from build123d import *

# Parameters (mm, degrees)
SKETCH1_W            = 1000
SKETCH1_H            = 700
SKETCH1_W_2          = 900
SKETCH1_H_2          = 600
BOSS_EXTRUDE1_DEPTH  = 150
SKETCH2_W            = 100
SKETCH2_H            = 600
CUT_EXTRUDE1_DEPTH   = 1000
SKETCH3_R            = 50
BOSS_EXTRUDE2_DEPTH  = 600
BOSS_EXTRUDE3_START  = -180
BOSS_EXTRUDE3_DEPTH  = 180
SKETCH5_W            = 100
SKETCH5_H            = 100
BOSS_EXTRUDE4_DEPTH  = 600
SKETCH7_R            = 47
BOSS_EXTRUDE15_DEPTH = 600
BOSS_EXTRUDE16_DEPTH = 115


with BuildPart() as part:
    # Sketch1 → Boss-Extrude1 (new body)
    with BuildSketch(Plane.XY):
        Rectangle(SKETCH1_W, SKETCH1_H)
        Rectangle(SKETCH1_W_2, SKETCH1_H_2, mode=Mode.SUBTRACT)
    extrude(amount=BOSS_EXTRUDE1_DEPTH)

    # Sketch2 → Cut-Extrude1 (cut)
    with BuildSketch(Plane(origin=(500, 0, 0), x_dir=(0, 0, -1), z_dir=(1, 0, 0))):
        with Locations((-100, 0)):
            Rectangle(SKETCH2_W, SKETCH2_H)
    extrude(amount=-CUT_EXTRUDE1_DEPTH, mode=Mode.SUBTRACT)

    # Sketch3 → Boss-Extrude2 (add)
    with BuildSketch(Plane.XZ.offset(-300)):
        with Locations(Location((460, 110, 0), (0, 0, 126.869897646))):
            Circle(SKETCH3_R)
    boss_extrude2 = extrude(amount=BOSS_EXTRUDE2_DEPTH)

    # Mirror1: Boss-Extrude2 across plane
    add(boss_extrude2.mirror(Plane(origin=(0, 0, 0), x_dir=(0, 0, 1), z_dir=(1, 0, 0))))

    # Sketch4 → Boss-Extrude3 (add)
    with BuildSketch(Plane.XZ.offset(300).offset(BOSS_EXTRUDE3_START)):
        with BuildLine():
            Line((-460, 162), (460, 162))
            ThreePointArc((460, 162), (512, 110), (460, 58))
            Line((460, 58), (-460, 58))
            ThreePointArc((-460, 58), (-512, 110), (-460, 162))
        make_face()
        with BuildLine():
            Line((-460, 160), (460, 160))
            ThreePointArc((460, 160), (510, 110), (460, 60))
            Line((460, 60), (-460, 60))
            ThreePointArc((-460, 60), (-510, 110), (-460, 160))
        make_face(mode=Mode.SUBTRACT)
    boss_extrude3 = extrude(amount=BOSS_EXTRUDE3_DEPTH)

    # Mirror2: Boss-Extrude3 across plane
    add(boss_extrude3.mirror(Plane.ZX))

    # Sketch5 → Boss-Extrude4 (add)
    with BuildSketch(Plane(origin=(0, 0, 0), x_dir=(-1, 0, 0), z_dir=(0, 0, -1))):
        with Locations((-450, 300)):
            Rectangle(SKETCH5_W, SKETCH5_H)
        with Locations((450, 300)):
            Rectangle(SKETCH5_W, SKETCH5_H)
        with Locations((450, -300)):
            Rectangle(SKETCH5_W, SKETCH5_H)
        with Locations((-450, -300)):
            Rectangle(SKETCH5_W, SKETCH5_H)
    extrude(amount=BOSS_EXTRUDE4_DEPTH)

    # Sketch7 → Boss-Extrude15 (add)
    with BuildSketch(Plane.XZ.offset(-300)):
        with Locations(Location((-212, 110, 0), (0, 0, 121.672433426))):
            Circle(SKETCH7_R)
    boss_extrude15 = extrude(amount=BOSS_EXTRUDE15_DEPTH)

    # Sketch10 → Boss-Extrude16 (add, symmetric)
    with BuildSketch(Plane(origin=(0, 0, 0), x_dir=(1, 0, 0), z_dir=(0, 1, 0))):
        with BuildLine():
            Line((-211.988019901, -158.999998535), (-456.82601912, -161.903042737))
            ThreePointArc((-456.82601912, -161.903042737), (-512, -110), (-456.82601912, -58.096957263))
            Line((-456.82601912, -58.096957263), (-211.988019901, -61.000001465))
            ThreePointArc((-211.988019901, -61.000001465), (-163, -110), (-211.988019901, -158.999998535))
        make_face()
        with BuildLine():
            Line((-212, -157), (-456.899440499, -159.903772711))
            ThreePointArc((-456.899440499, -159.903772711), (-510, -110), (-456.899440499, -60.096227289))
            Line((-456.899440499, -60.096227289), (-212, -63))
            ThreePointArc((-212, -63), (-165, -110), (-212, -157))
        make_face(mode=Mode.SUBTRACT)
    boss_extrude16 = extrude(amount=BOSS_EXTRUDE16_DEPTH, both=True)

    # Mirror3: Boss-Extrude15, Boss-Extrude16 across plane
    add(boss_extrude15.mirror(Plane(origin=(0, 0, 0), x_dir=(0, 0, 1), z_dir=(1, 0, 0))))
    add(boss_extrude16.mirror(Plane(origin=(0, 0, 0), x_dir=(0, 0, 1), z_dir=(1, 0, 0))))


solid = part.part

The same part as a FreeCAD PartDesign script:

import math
import FreeCAD as App
import Part
import Sketcher
Q = App.Units.Quantity


def add_polygon(sketch, points):
    """Adds a closed chain of lines whose ends are joined by coincident constraints."""
    first, n = sketch.GeometryCount, len(points)
    for a, b in zip(points, points[1:] + points[:1]):
        sketch.addGeometry(Part.LineSegment(App.Vector(*a, 0), App.Vector(*b, 0)), False)
    for i in range(n):
        sketch.addConstraint(Sketcher.Constraint("Coincident", first + i, 2, first + (i + 1) % n, 1))

doc = App.newDocument("Part")
params = doc.addObject("Spreadsheet::Sheet", "Params")
for row, (alias, value) in enumerate([
    ("sketch1_width", "1000 mm"),
    ("sketch1_width2", "900 mm"),
    ("sketch1_height", "700 mm"),
    ("sketch1_height2", "600 mm"),
    ("pad1_length", "150 mm"),
    ("sketch2_width", "600 mm"),
    ("sketch2_height", "100 mm"),
    ("pocket1_length", "1000 mm"),
    ("sketch3_diameter", "100 mm"),
    ("pad2_length", "600 mm"),
    ("sketch4_radius", "52 mm"),
    ("sketch4_radius2", "50 mm"),
    ("sketch4_width", "920 mm"),
    ("pad3_length", "180 mm"),
    ("sketch5_width", "100 mm"),
    ("pad4_length", "600 mm"),
    ("sketch6_diameter", "94 mm"),
    ("pad5_length", "600 mm"),
    ("sketch7_radius", "49 mm"),
    ("sketch7_radius2", "52 mm"),
    ("sketch7_radius3", "50 mm"),
    ("sketch7_radius4", "47 mm"),
    ("pad6_length", "230 mm"),
], start=1):
    params.set(f"A{row}", alias)
    params.set(f"B{row}", "=" + value)
    params.setAlias(f"B{row}", alias)

body = doc.addObject("PartDesign::Body", "Body")

# Sketch on XY plane
sketch1 = body.newObject("Sketcher::SketchObject", "Sketch")
sketch1.AttachmentSupport = (doc.getObject("XY_Plane"), [""])
sketch1.MapMode = "FlatFace"
add_polygon(sketch1, [(-500, 350), (-500, -350), (500, -350), (500, 350)])  # lines 0-3
add_polygon(sketch1, [(450, -300), (-450, -300), (-450, 300), (450, 300)])  # lines 4-7
sketch1.addConstraint(Sketcher.Constraint("Vertical", 0))
sketch1.addConstraint(Sketcher.Constraint("Horizontal", 1))
sketch1.addConstraint(Sketcher.Constraint("Vertical", 2))
sketch1.addConstraint(Sketcher.Constraint("Horizontal", 3))
sketch1.addConstraint(Sketcher.Constraint("Horizontal", 4))
sketch1.addConstraint(Sketcher.Constraint("Vertical", 5))
sketch1.addConstraint(Sketcher.Constraint("Horizontal", 6))
sketch1.addConstraint(Sketcher.Constraint("Vertical", 7))
sketch1.addConstraint(Sketcher.Constraint("Symmetric", 0, 2, 2, 2, -1, 1))
sketch1.addConstraint(Sketcher.Constraint("Symmetric", 4, 2, 6, 2, -1, 1))
sketch1.addConstraint(Sketcher.Constraint("DistanceX", 1, 1, 1, 2, Q("1000 mm")))
sketch1.addConstraint(Sketcher.Constraint("DistanceX", 4, 2, 4, 1, Q("900 mm")))
sketch1.addConstraint(Sketcher.Constraint("DistanceY", 0, 2, 0, 1, Q("700 mm")))
sketch1.addConstraint(Sketcher.Constraint("DistanceY", 5, 1, 5, 2, Q("600 mm")))
sketch1.setExpression("Constraints[18]", "Params.sketch1_width")
sketch1.setExpression("Constraints[19]", "Params.sketch1_width2")
sketch1.setExpression("Constraints[20]", "Params.sketch1_height")
sketch1.setExpression("Constraints[21]", "Params.sketch1_height2")
pad1 = body.newObject("PartDesign::Pad", "Pad")
pad1.Profile = sketch1
pad1.setExpression("Length", "Params.pad1_length")

# Sketch on YZ plane
sketch2 = body.newObject("Sketcher::SketchObject", "Sketch001")
sketch2.AttachmentSupport = (doc.getObject("YZ_Plane"), [""])
sketch2.MapMode = "FlatFace"
sketch2.AttachmentOffset = App.Placement(App.Vector(0, 0, 500), App.Rotation())
add_polygon(sketch2, [(300, 150), (-300, 150), (-300, 50), (300, 50)])  # lines 0-3
sketch2.addConstraint(Sketcher.Constraint("Horizontal", 0))
sketch2.addConstraint(Sketcher.Constraint("Vertical", 1))
sketch2.addConstraint(Sketcher.Constraint("Horizontal", 2))
sketch2.addConstraint(Sketcher.Constraint("Vertical", 3))
sketch2.addConstraint(Sketcher.Constraint("DistanceX", 0, 2, 0, 1, Q("600 mm")))
sketch2.addConstraint(Sketcher.Constraint("DistanceY", 1, 2, 1, 1, Q("100 mm")))
sketch2.addConstraint(Sketcher.Constraint("DistanceX", 0, 2, -1, 1, Q("300 mm")))
sketch2.addConstraint(Sketcher.Constraint("DistanceY", -1, 1, 0, 2, Q("150 mm")))
sketch2.setExpression("Constraints[8]", "Params.sketch2_width")
sketch2.setExpression("Constraints[9]", "Params.sketch2_height")
pocket1 = body.newObject("PartDesign::Pocket", "Pocket")
pocket1.Profile = sketch2
pocket1.setExpression("Length", "Params.pocket1_length")

# Sketch on XZ plane
sketch3 = body.newObject("Sketcher::SketchObject", "Sketch002")
sketch3.AttachmentSupport = (doc.getObject("XZ_Plane"), [""])
sketch3.MapMode = "FlatFace"
sketch3.AttachmentOffset = App.Placement(App.Vector(0, 0, -300), App.Rotation())
sketch3.addGeometry(Part.Circle(App.Vector(460, 110, 0), App.Vector(0, 0, 1), 50), False)
sketch3.addConstraint(Sketcher.Constraint("Diameter", 0, Q("100 mm")))
sketch3.addConstraint(Sketcher.Constraint("DistanceX", -1, 1, 0, 3, Q("460 mm")))
sketch3.addConstraint(Sketcher.Constraint("DistanceY", -1, 1, 0, 3, Q("110 mm")))
sketch3.setExpression("Constraints[0]", "Params.sketch3_diameter")
pad2 = body.newObject("PartDesign::Pad", "Pad001")
pad2.Profile = sketch3
pad2.setExpression("Length", "Params.pad2_length")
doc.recompute()

mirrored = body.newObject("PartDesign::Mirrored", "Mirrored")
mirrored.Originals = [pad2]
mirrored.MirrorPlane = (doc.getObject("YZ_Plane"), [""])
body.Tip = mirrored

# Sketch on XZ plane
sketch4 = body.newObject("Sketcher::SketchObject", "Sketch003")
sketch4.AttachmentSupport = (doc.getObject("XZ_Plane"), [""])
sketch4.MapMode = "FlatFace"
sketch4.AttachmentOffset = App.Placement(App.Vector(0, 0, 120), App.Rotation())
sketch4.addGeometry(Part.LineSegment(App.Vector(460, 162, 0), App.Vector(-460, 162, 0)), False)
sketch4.addGeometry(Part.ArcOfCircle(Part.Circle(App.Vector(-460, 110, 0), App.Vector(0, 0, 1), 52), math.radians(90), math.radians(270)), False)
sketch4.addGeometry(Part.LineSegment(App.Vector(-460, 58, 0), App.Vector(460, 58, 0)), False)
sketch4.addGeometry(Part.ArcOfCircle(Part.Circle(App.Vector(460, 110, 0), App.Vector(0, 0, 1), 52), math.radians(-90), math.radians(90)), False)
sketch4.addGeometry(Part.LineSegment(App.Vector(-460, 160, 0), App.Vector(460, 160, 0)), False)
sketch4.addGeometry(Part.ArcOfCircle(Part.Circle(App.Vector(460, 110, 0), App.Vector(0, 0, 1), 50), math.radians(-90), math.radians(90)), False)
sketch4.addGeometry(Part.LineSegment(App.Vector(460, 60, 0), App.Vector(-460, 60, 0)), False)
sketch4.addGeometry(Part.ArcOfCircle(Part.Circle(App.Vector(-460, 110, 0), App.Vector(0, 0, 1), 50), math.radians(90), math.radians(270)), False)
sketch4.addConstraint(Sketcher.Constraint("Tangent", 0, 2, 1, 1))
sketch4.addConstraint(Sketcher.Constraint("Tangent", 1, 2, 2, 1))
sketch4.addConstraint(Sketcher.Constraint("Tangent", 2, 2, 3, 1))
sketch4.addConstraint(Sketcher.Constraint("Tangent", 3, 2, 0, 1))
sketch4.addConstraint(Sketcher.Constraint("Tangent", 4, 2, 5, 2))
sketch4.addConstraint(Sketcher.Constraint("Tangent", 5, 1, 6, 1))
sketch4.addConstraint(Sketcher.Constraint("Tangent", 6, 2, 7, 2))
sketch4.addConstraint(Sketcher.Constraint("Tangent", 7, 1, 4, 1))
sketch4.addConstraint(Sketcher.Constraint("Horizontal", 0))
sketch4.addConstraint(Sketcher.Constraint("Horizontal", 2))
sketch4.addConstraint(Sketcher.Constraint("Horizontal", 4))
sketch4.addConstraint(Sketcher.Constraint("Horizontal", 6))
sketch4.addConstraint(Sketcher.Constraint("Coincident", 5, 3, 3, 3))
sketch4.addConstraint(Sketcher.Constraint("Vertical", 7, 3, 0, 2))
sketch4.addConstraint(Sketcher.Constraint("Radius", 1, Q("52 mm")))
sketch4.addConstraint(Sketcher.Constraint("Radius", 5, Q("50 mm")))
sketch4.addConstraint(Sketcher.Constraint("DistanceX", 0, 2, 0, 1, Q("920 mm")))
sketch4.addConstraint(Sketcher.Constraint("DistanceX", 1, 3, -1, 1, Q("460 mm")))
sketch4.addConstraint(Sketcher.Constraint("DistanceY", -1, 1, 1, 3, Q("110 mm")))
sketch4.setExpression("Constraints[14]", "Params.sketch4_radius")
sketch4.setExpression("Constraints[15]", "Params.sketch4_radius2")
sketch4.setExpression("Constraints[16]", "Params.sketch4_width")
pad3 = body.newObject("PartDesign::Pad", "Pad002")
pad3.Profile = sketch4
pad3.setExpression("Length", "Params.pad3_length")
doc.recompute()

mirrored2 = body.newObject("PartDesign::Mirrored", "Mirrored001")
mirrored2.Originals = [pad3]
mirrored2.MirrorPlane = (doc.getObject("XZ_Plane"), [""])
body.Tip = mirrored2

# Sketch on XY plane
sketch5 = body.newObject("Sketcher::SketchObject", "Sketch004")
sketch5.AttachmentSupport = (doc.getObject("XY_Plane"), [""])
sketch5.MapMode = "FlatFace"
add_polygon(sketch5, [(500, 350), (500, 250), (400, 250), (400, 350)])  # lines 0-3
add_polygon(sketch5, [(-400, 350), (-400, 250), (-500, 250), (-500, 350)])  # lines 4-7
add_polygon(sketch5, [(-400, -250), (-400, -350), (-500, -350), (-500, -250)])  # lines 8-11
add_polygon(sketch5, [(500, -250), (500, -350), (400, -350), (400, -250)])  # lines 12-15
sketch5.addConstraint(Sketcher.Constraint("Vertical", 0))
sketch5.addConstraint(Sketcher.Constraint("Horizontal", 1))
sketch5.addConstraint(Sketcher.Constraint("Vertical", 2))
sketch5.addConstraint(Sketcher.Constraint("Horizontal", 3))
sketch5.addConstraint(Sketcher.Constraint("Vertical", 4))
sketch5.addConstraint(Sketcher.Constraint("Horizontal", 5))
sketch5.addConstraint(Sketcher.Constraint("Vertical", 6))
sketch5.addConstraint(Sketcher.Constraint("Horizontal", 7))
sketch5.addConstraint(Sketcher.Constraint("Vertical", 8))
sketch5.addConstraint(Sketcher.Constraint("Horizontal", 9))
sketch5.addConstraint(Sketcher.Constraint("Vertical", 10))
sketch5.addConstraint(Sketcher.Constraint("Horizontal", 11))
sketch5.addConstraint(Sketcher.Constraint("Vertical", 12))
sketch5.addConstraint(Sketcher.Constraint("Horizontal", 13))
sketch5.addConstraint(Sketcher.Constraint("Vertical", 14))
sketch5.addConstraint(Sketcher.Constraint("Horizontal", 15))
sketch5.addConstraint(Sketcher.Constraint("Symmetric", 2, 2, 8, 2, -1, 1))
sketch5.addConstraint(Sketcher.Constraint("Symmetric", 0, 2, 10, 2, -1, 1))
sketch5.addConstraint(Sketcher.Constraint("Symmetric", 6, 2, 12, 2, -1, 1))
sketch5.addConstraint(Sketcher.Constraint("Symmetric", 4, 2, 14, 2, -1, 1))
sketch5.addConstraint(Sketcher.Constraint("Symmetric", 1, 2, 4, 2, -2))
sketch5.addConstraint(Sketcher.Constraint("Symmetric", 3, 2, 6, 2, -2))
sketch5.addConstraint(Sketcher.Constraint("Equal", 15, 0))
sketch5.addConstraint(Sketcher.Constraint("DistanceX", 1, 2, 1, 1, Q("100 mm")))
sketch5.addConstraint(Sketcher.Constraint("DistanceX", -1, 1, 0, 2, Q("500 mm")))
sketch5.addConstraint(Sketcher.Constraint("DistanceY", -1, 1, 0, 2, Q("250 mm")))
sketch5.setExpression("Constraints[39]", "Params.sketch5_width")
pad4 = body.newObject("PartDesign::Pad", "Pad003")
pad4.Profile = sketch5
pad4.setExpression("Length", "Params.pad4_length")
pad4.Reversed = True

# Sketch on XZ plane
sketch6 = body.newObject("Sketcher::SketchObject", "Sketch005")
sketch6.AttachmentSupport = (doc.getObject("XZ_Plane"), [""])
sketch6.MapMode = "FlatFace"
sketch6.AttachmentOffset = App.Placement(App.Vector(0, 0, -300), App.Rotation())
sketch6.addGeometry(Part.Circle(App.Vector(-212, 110, 0), App.Vector(0, 0, 1), 47), False)
sketch6.addConstraint(Sketcher.Constraint("Diameter", 0, Q("94 mm")))
sketch6.addConstraint(Sketcher.Constraint("DistanceX", 0, 3, -1, 1, Q("212 mm")))
sketch6.addConstraint(Sketcher.Constraint("DistanceY", -1, 1, 0, 3, Q("110 mm")))
sketch6.setExpression("Constraints[0]", "Params.sketch6_diameter")
pad5 = body.newObject("PartDesign::Pad", "Pad004")
pad5.Profile = sketch6
pad5.setExpression("Length", "Params.pad5_length")

# Sketch on XZ plane
sketch7 = body.newObject("Sketcher::SketchObject", "Sketch006")
sketch7.AttachmentSupport = (doc.getObject("XZ_Plane"), [""])
sketch7.MapMode = "FlatFace"
sketch7.addGeometry(Part.LineSegment(App.Vector(-457, 162, 0), App.Vector(-212, 159, 0)), False)
sketch7.addGeometry(Part.ArcOfCircle(Part.Circle(App.Vector(-212, 110, 0), App.Vector(0, 0, 1), 49), math.radians(-90), math.radians(90)), False)
sketch7.addGeometry(Part.LineSegment(App.Vector(-212, 61, 0), App.Vector(-457, 58, 0)), False)
sketch7.addGeometry(Part.ArcOfCircle(Part.Circle(App.Vector(-460, 110, 0), App.Vector(0, 0, 1), 52), math.radians(87), math.radians(273)), False)
sketch7.addGeometry(Part.LineSegment(App.Vector(-212, 157, 0), App.Vector(-457, 160, 0)), False)
sketch7.addGeometry(Part.ArcOfCircle(Part.Circle(App.Vector(-460, 110, 0), App.Vector(0, 0, 1), 50), math.radians(86), math.radians(274)), False)
sketch7.addGeometry(Part.LineSegment(App.Vector(-457, 60, 0), App.Vector(-212, 63, 0)), False)
sketch7.addGeometry(Part.ArcOfCircle(Part.Circle(App.Vector(-212, 110, 0), App.Vector(0, 0, 1), 47), math.radians(-90), math.radians(90)), False)
sketch7.addConstraint(Sketcher.Constraint("Coincident", 0, 2, 1, 2))
sketch7.addConstraint(Sketcher.Constraint("Coincident", 1, 1, 2, 1))
sketch7.addConstraint(Sketcher.Constraint("Coincident", 2, 2, 3, 2))
sketch7.addConstraint(Sketcher.Constraint("Coincident", 3, 1, 0, 1))
sketch7.addConstraint(Sketcher.Constraint("Coincident", 4, 2, 5, 1))
sketch7.addConstraint(Sketcher.Constraint("Coincident", 5, 2, 6, 1))
sketch7.addConstraint(Sketcher.Constraint("Coincident", 6, 2, 7, 1))
sketch7.addConstraint(Sketcher.Constraint("Coincident", 7, 2, 4, 1))
sketch7.addConstraint(Sketcher.Constraint("Coincident", 5, 3, 3, 3))
sketch7.addConstraint(Sketcher.Constraint("Coincident", 7, 3, 1, 3))
sketch7.addConstraint(Sketcher.Constraint("Parallel", 0, 4))
sketch7.addConstraint(Sketcher.Constraint("Parallel", 2, 6))
sketch7.addConstraint(Sketcher.Constraint("Horizontal", 1, 3, 3, 3))
sketch7.addConstraint(Sketcher.Constraint("Vertical", 0, 2, 1, 1))
sketch7.addConstraint(Sketcher.Constraint("Vertical", 2, 2, 3, 1))
sketch7.addConstraint(Sketcher.Constraint("Vertical", 4, 2, 5, 2))
sketch7.addConstraint(Sketcher.Constraint("Vertical", 7, 3, 6, 2))
sketch7.addConstraint(Sketcher.Constraint("Radius", 1, Q("49 mm")))
sketch7.addConstraint(Sketcher.Constraint("Radius", 3, Q("52 mm")))
sketch7.addConstraint(Sketcher.Constraint("Radius", 5, Q("50 mm")))
sketch7.addConstraint(Sketcher.Constraint("Radius", 7, Q("47 mm")))
sketch7.addConstraint(Sketcher.Constraint("DistanceX", 1, 3, -1, 1, Q("212 mm")))
sketch7.addConstraint(Sketcher.Constraint("DistanceY", -1, 1, 1, 3, Q("110 mm")))
sketch7.addConstraint(Sketcher.Constraint("DistanceX", 3, 3, -1, 1, Q("460 mm")))
sketch7.addConstraint(Sketcher.Constraint("DistanceX", 2, 2, 1, 1, Q("244.837999 mm")))
sketch7.addConstraint(Sketcher.Constraint("DistanceX", 0, 2, -1, 1, Q("211.98802 mm")))
sketch7.setExpression("Constraints[17]", "Params.sketch7_radius")
sketch7.setExpression("Constraints[18]", "Params.sketch7_radius2")
sketch7.setExpression("Constraints[19]", "Params.sketch7_radius3")
sketch7.setExpression("Constraints[20]", "Params.sketch7_radius4")
pad6 = body.newObject("PartDesign::Pad", "Pad005")
pad6.Profile = sketch7
pad6.setExpression("Length", "Params.pad6_length")
pad6.Midplane = True
doc.recompute()

mirrored3 = body.newObject("PartDesign::Mirrored", "Mirrored002")
mirrored3.Originals = [pad5, pad6]
mirrored3.MirrorPlane = (doc.getObject("YZ_Plane"), [""])
body.Tip = mirrored3

doc.recompute()
